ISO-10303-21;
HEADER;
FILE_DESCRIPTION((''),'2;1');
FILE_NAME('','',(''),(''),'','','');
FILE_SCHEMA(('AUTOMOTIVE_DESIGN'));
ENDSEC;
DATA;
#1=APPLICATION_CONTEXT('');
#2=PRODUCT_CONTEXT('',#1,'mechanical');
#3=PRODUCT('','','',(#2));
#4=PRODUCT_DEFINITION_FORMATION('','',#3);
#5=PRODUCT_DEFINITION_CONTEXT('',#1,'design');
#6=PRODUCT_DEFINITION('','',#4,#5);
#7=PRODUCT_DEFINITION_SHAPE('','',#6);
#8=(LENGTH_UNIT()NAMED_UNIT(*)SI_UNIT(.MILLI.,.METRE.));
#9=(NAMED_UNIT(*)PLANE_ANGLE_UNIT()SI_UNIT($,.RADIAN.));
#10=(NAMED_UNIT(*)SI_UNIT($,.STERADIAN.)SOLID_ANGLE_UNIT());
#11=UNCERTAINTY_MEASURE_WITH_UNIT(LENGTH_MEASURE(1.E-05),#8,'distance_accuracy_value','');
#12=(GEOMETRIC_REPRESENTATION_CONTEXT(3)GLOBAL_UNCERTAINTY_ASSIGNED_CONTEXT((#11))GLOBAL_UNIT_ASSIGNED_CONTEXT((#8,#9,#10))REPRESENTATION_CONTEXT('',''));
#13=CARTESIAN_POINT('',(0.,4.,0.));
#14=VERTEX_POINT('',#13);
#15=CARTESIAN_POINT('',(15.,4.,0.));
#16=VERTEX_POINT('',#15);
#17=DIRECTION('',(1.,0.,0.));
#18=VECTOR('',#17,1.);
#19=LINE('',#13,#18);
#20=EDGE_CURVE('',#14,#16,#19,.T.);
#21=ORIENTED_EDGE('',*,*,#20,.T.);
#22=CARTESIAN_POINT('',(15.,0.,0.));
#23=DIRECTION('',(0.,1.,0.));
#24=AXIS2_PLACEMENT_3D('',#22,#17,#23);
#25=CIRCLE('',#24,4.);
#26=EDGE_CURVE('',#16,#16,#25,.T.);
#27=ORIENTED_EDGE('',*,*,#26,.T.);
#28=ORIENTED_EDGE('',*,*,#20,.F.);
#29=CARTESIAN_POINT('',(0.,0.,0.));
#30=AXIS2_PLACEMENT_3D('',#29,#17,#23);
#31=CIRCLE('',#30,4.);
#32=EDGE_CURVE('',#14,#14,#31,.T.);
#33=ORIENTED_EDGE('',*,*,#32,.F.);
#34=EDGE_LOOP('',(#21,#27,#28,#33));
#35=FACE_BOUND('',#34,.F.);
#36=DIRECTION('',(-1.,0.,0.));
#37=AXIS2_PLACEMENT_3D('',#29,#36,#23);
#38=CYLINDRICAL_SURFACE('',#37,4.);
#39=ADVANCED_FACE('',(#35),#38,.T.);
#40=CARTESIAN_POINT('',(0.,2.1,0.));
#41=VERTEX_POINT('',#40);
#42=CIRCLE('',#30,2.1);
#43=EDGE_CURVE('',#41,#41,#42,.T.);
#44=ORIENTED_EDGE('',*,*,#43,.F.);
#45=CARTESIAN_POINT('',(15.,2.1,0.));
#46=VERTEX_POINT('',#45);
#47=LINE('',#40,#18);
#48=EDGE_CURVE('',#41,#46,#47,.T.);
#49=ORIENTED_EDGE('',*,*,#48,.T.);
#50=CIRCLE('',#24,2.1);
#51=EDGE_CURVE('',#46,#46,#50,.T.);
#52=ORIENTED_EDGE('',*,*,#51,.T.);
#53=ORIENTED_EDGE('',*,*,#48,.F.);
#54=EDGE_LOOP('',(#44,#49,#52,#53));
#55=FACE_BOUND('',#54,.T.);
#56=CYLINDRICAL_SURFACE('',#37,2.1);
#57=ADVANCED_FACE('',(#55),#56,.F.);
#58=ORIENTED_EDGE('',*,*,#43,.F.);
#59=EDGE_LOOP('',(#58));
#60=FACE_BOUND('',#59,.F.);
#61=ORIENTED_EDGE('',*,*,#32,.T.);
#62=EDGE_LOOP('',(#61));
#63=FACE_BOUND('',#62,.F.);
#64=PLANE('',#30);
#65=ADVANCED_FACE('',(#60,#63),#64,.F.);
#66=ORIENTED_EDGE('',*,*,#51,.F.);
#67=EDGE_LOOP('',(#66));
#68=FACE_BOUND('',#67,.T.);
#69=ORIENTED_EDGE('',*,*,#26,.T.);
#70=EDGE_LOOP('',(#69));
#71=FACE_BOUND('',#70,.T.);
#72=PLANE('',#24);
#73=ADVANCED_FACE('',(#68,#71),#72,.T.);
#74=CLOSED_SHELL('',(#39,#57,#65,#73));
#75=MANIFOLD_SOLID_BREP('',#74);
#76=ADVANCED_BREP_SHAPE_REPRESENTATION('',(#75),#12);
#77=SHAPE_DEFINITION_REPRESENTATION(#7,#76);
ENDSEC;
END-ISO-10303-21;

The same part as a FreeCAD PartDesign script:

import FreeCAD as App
import Part
import Sketcher

V = App.Vector

doc = App.newDocument("Part")
body = doc.addObject("PartDesign::Body", "Body")

# Sketch on YZ plane
sketch1 = body.newObject("Sketcher::SketchObject", "Sketch")
sketch1.AttachmentSupport = (doc.getObject("YZ_Plane"), [""])
sketch1.MapMode = "FlatFace"
sketch1.addGeometry([
    Part.Circle(V(0, 0, 0), V(0, 0, 1), 4),
    Part.Circle(V(0, 0, 0), V(0, 0, 1), 2.1),
], False)
sketch1.addConstraint([
    Sketcher.Constraint("Coincident", 0, 3, -1, 1),
    Sketcher.Constraint("Coincident", 1, 3, -1, 1),
    Sketcher.Constraint("Diameter", 0, 8.0),
    Sketcher.Constraint("Diameter", 1, 4.2),
])
pad1 = body.newObject("PartDesign::Pad", "Pad")
pad1.Profile = sketch1
pad1.Length = 15

doc.recompute()
